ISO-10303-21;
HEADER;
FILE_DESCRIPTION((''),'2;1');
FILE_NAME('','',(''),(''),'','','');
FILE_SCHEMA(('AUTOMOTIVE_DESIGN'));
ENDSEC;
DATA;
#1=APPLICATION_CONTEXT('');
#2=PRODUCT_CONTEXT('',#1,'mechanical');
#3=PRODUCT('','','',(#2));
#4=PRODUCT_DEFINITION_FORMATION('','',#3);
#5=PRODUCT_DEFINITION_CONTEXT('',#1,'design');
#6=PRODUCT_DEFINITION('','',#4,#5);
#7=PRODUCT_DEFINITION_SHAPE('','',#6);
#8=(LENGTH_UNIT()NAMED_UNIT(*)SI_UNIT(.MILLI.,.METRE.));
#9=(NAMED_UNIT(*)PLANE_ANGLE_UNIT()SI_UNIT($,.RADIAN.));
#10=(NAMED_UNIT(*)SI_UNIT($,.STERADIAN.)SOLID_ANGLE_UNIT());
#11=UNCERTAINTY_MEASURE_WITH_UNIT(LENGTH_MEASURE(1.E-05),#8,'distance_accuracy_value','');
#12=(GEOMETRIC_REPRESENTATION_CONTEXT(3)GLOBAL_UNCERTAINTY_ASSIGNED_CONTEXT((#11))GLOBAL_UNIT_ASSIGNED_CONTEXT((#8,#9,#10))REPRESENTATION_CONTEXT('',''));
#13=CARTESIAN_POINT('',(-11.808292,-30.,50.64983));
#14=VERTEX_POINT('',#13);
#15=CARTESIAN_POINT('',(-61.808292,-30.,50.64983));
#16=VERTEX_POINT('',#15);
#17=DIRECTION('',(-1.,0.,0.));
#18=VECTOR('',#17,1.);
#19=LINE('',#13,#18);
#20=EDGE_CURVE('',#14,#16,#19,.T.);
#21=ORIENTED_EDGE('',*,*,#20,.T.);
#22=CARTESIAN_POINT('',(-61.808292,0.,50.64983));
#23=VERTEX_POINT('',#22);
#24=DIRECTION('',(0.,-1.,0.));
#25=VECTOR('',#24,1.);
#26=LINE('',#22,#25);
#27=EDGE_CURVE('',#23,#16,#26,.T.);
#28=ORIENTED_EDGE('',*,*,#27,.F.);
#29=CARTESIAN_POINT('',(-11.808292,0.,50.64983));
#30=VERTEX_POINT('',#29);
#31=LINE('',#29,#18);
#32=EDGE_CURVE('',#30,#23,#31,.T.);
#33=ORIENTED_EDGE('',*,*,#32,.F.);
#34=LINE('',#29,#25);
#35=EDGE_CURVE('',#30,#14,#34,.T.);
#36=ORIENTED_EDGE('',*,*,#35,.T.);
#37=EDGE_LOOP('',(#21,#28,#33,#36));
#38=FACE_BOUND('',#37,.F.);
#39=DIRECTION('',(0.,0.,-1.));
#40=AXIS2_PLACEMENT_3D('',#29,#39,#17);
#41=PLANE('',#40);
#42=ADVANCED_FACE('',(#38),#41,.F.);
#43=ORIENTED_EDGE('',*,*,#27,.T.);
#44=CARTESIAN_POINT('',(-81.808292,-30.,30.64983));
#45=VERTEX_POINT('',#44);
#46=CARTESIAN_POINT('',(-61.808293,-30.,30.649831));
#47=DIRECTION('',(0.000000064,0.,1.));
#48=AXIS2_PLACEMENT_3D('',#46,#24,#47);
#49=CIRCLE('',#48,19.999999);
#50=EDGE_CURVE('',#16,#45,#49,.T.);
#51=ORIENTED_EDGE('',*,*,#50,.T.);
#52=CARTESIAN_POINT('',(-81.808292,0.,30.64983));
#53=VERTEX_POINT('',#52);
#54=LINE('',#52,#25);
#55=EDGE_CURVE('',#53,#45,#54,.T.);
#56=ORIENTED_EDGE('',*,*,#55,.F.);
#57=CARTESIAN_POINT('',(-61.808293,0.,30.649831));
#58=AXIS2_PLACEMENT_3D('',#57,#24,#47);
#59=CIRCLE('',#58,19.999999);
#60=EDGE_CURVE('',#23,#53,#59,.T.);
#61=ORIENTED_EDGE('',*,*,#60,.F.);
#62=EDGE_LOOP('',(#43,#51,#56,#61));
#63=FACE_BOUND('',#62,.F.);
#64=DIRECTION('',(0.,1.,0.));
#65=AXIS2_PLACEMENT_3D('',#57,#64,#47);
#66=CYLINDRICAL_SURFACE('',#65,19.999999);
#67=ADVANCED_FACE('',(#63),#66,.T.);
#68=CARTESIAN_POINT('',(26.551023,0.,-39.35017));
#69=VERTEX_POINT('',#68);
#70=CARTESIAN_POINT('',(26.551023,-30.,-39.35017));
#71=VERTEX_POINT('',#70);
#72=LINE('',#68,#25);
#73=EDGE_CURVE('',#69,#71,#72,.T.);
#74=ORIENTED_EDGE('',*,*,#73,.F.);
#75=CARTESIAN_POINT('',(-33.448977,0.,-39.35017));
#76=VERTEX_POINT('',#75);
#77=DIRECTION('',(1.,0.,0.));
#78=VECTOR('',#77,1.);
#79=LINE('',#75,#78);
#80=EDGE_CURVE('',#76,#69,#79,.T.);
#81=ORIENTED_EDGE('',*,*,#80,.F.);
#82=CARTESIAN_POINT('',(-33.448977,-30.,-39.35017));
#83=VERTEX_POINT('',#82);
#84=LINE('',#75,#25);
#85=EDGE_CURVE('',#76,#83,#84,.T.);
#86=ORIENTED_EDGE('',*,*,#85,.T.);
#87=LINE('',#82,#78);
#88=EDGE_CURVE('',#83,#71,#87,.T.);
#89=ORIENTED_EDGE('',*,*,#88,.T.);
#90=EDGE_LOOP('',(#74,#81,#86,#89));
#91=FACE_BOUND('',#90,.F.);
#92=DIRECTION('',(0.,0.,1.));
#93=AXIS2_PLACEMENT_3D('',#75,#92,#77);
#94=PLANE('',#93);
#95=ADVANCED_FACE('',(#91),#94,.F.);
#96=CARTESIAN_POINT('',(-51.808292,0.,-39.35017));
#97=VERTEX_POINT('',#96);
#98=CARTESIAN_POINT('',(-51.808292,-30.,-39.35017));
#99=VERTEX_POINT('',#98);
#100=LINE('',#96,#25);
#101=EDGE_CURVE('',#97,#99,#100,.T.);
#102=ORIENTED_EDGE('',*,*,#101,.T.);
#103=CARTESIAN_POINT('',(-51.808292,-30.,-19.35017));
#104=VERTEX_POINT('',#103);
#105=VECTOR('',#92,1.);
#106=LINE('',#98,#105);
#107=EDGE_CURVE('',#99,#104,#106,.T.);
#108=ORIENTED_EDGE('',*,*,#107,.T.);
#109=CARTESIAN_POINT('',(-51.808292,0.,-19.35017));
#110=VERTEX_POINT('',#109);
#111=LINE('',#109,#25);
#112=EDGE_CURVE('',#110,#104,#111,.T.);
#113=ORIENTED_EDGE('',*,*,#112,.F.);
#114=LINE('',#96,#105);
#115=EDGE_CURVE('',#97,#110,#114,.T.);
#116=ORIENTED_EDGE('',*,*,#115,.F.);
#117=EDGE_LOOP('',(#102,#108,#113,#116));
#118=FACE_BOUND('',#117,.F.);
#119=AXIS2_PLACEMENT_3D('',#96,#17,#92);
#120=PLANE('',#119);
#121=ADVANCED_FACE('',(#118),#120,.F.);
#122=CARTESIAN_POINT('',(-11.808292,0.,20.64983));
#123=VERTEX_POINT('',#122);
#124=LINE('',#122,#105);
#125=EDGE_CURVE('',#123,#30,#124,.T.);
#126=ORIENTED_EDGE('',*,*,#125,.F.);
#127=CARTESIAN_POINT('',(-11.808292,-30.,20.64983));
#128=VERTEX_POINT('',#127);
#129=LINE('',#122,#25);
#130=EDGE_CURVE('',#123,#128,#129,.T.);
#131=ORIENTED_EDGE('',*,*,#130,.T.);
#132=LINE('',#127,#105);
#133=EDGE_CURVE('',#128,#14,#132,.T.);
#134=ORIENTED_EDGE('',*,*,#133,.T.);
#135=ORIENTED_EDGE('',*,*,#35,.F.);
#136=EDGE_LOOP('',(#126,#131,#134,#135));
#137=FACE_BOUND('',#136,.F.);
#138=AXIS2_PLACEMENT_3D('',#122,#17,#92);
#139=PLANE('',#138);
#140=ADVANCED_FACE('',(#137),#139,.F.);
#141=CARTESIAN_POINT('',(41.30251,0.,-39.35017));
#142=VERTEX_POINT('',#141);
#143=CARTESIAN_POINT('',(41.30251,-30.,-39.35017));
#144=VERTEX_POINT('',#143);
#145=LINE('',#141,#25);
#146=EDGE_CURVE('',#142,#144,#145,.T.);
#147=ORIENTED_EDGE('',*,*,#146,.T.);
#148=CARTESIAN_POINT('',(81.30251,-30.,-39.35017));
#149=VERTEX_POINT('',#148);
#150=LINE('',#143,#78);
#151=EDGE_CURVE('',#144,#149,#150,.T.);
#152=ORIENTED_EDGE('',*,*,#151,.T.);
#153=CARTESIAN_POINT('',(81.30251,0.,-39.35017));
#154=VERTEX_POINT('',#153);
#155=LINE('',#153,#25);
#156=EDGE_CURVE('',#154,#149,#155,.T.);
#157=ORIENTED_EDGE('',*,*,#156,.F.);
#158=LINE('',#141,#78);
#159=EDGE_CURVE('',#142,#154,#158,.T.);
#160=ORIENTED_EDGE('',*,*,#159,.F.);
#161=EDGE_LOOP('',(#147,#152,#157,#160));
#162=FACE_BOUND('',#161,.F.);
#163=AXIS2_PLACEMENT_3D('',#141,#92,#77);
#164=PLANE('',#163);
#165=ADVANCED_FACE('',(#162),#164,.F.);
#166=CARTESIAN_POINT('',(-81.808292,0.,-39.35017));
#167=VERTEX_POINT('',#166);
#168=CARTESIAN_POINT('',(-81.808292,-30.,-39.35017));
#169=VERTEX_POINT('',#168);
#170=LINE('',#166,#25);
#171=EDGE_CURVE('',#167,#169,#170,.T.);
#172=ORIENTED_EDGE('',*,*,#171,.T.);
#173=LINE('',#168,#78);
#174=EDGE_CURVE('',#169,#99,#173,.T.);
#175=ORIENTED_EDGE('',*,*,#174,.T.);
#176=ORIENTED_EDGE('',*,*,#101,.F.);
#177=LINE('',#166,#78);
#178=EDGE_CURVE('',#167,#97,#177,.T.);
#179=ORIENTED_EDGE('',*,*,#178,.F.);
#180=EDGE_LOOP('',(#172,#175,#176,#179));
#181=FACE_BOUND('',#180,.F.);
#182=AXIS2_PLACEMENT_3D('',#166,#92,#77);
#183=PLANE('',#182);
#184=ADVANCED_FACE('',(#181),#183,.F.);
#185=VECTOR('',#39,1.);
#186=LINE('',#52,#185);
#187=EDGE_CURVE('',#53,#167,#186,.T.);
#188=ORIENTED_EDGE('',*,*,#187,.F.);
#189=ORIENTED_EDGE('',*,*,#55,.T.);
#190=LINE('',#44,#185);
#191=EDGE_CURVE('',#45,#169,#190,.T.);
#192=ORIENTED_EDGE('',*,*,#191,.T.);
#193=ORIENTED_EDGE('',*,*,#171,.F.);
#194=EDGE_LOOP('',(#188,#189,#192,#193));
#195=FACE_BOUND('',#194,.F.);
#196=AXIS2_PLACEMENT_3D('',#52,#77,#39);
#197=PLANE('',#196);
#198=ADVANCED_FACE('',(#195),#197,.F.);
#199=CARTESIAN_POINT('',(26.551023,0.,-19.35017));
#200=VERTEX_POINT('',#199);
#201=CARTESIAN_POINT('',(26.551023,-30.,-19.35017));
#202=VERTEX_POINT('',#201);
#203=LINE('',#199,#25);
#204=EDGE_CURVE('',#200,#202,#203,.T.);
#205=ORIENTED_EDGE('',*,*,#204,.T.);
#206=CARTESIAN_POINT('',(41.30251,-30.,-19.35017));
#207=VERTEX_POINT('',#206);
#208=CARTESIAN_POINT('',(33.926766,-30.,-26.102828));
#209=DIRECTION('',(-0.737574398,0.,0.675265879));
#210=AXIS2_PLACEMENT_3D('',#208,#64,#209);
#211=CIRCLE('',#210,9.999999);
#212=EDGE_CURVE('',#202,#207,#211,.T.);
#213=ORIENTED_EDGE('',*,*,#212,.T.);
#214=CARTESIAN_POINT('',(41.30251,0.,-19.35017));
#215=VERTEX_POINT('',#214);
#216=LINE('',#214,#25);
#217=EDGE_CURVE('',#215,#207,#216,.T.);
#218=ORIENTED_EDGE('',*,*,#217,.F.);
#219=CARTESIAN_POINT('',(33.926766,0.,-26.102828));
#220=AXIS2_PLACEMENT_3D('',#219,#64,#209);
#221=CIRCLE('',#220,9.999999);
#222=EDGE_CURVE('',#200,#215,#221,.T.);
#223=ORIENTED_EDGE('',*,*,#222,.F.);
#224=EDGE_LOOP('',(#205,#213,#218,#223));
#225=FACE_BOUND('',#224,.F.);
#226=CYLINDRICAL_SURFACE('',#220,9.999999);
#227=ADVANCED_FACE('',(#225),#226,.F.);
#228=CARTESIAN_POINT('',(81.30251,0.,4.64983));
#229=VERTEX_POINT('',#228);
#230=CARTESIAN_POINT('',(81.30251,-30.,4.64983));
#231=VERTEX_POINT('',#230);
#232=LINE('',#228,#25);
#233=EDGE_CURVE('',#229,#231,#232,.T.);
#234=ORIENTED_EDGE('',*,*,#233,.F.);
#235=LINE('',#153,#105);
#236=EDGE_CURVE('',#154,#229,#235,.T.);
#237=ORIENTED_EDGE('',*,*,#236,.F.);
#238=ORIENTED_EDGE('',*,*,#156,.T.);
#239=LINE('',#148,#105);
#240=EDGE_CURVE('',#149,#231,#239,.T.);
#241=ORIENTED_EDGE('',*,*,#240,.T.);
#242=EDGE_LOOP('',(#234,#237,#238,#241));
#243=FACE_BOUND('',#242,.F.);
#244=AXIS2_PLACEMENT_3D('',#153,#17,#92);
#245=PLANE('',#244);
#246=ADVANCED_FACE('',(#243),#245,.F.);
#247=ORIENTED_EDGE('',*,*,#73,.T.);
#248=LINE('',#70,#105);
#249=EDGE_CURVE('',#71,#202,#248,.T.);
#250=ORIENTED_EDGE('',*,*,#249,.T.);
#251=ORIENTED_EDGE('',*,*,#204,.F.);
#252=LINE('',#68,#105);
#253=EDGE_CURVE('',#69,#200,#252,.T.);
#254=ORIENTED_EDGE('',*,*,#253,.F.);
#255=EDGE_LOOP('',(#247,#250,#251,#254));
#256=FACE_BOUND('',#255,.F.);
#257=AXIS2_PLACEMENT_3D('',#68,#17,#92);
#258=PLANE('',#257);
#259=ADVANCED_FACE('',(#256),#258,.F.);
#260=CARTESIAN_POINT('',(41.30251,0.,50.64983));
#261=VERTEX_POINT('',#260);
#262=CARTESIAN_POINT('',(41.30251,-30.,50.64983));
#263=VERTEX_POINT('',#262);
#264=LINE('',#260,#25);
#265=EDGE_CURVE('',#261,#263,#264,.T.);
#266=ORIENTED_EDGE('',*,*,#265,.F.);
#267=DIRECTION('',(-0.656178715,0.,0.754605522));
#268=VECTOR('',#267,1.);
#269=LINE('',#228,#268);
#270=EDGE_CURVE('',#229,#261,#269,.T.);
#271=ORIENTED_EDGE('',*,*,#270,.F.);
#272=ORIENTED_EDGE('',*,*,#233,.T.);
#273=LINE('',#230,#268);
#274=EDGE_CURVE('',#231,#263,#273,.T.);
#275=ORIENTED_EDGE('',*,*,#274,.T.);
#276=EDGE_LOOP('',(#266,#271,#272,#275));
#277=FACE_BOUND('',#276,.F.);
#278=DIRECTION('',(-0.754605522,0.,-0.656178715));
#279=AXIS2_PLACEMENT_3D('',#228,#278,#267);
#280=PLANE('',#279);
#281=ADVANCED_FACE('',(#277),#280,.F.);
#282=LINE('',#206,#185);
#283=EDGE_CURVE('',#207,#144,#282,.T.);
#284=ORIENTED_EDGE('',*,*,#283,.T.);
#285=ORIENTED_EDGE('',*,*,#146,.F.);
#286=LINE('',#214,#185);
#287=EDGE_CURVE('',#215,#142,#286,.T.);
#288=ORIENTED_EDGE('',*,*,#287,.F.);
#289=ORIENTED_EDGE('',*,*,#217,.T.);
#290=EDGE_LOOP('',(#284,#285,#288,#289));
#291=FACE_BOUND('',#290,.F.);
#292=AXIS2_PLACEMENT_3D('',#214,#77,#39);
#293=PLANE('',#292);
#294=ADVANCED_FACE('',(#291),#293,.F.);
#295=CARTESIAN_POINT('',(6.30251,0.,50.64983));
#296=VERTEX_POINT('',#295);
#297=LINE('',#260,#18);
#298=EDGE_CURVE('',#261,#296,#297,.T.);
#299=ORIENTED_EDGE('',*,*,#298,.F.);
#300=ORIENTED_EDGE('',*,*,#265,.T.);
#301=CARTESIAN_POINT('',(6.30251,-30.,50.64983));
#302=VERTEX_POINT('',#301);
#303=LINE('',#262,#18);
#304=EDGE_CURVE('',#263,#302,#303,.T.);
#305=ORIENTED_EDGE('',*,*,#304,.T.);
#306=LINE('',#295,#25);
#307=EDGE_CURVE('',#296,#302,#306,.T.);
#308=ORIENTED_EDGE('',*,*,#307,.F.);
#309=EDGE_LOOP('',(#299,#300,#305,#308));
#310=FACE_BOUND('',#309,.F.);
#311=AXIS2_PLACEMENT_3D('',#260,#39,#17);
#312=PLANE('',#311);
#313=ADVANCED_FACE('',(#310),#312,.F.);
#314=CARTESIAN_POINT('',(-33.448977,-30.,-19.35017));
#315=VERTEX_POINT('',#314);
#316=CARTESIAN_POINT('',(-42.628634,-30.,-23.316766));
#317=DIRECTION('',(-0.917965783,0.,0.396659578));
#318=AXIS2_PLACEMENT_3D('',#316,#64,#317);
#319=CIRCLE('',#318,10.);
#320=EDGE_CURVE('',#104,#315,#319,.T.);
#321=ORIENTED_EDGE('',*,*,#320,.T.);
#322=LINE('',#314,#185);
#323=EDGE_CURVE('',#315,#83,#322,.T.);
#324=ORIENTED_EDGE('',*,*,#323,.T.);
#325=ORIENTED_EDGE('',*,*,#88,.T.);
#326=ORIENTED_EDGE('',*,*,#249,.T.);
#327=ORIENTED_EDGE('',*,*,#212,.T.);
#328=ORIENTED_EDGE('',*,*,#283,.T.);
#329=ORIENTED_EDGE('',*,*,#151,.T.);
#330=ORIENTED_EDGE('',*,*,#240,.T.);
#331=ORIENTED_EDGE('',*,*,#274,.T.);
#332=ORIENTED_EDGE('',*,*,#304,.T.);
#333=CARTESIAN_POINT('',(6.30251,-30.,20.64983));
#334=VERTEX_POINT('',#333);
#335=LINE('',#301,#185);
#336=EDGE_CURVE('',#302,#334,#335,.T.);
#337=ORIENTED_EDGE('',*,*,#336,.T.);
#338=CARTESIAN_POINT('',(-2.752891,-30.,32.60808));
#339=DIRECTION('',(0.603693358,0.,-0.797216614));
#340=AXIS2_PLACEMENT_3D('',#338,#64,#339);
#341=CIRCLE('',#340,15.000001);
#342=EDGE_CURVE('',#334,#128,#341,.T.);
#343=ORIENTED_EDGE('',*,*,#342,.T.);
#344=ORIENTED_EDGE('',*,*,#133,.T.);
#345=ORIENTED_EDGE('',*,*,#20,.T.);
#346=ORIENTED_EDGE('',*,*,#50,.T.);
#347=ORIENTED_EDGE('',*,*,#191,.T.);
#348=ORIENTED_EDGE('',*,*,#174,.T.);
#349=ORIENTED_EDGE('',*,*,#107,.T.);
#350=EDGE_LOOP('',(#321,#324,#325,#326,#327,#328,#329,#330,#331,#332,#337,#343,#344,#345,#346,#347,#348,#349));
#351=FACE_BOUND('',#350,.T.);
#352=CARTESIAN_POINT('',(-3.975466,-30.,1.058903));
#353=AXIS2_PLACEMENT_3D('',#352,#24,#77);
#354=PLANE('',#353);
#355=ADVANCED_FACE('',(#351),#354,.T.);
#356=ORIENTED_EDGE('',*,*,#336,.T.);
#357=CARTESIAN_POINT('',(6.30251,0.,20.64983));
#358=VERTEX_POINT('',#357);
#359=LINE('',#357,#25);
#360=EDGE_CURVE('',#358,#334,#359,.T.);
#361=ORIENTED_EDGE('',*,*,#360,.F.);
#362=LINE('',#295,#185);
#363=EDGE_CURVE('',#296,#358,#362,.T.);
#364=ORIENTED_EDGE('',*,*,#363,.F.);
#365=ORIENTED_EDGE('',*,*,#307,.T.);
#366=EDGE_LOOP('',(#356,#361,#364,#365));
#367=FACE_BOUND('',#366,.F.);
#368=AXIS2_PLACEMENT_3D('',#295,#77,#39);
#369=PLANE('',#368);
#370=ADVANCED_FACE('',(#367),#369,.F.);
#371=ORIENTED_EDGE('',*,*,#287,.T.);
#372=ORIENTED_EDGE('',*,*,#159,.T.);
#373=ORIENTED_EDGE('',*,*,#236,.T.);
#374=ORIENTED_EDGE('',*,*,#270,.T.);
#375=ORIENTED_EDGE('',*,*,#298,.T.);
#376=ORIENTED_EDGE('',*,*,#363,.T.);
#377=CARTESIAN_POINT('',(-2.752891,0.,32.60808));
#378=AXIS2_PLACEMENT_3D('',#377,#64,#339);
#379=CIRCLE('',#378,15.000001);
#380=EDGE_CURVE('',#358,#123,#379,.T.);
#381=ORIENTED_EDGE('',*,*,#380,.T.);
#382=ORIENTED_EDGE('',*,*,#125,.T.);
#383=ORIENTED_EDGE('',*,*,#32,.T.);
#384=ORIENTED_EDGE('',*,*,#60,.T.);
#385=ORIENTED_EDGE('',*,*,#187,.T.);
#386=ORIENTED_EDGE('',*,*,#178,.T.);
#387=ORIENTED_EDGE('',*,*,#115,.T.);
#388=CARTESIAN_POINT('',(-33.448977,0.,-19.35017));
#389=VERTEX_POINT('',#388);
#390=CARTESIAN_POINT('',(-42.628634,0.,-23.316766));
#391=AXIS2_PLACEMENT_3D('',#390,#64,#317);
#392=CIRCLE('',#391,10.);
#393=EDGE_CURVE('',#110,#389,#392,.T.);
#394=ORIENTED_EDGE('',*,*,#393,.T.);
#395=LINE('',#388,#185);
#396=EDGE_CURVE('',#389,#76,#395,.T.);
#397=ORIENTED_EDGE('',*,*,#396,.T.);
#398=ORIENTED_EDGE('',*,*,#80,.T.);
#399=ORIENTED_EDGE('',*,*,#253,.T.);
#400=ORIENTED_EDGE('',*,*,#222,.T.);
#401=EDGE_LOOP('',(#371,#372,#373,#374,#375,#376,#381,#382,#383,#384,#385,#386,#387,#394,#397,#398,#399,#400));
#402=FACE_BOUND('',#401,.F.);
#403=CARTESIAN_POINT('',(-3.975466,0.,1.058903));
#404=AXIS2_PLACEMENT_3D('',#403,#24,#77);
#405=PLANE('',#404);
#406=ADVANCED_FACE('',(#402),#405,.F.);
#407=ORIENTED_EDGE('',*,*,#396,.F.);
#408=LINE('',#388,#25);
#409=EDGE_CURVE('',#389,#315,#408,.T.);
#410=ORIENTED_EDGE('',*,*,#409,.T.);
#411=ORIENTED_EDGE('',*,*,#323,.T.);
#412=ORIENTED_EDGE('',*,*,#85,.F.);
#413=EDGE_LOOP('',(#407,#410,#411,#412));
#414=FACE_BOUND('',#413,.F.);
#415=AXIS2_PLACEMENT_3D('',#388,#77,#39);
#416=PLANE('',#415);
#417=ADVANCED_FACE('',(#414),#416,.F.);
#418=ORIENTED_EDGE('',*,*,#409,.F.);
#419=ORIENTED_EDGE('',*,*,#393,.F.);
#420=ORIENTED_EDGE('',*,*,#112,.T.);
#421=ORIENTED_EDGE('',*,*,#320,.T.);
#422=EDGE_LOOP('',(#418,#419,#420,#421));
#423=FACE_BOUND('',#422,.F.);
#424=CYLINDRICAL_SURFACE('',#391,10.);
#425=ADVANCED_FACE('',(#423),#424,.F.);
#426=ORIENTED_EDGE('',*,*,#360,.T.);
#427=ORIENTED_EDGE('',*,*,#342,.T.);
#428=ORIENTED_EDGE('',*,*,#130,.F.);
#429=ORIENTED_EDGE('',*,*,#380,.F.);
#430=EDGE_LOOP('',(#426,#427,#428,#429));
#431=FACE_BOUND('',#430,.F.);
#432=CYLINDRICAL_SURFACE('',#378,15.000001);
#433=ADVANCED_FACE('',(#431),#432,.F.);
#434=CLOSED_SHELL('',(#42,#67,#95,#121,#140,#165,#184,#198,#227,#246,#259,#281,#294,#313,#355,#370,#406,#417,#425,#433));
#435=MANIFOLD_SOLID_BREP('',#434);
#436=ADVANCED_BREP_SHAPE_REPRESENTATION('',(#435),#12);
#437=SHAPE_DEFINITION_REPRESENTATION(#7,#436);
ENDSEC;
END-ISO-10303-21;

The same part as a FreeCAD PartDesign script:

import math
import FreeCAD as App
import Part
import Sketcher
Q = App.Units.Quantity

doc = App.newDocument("Part")
body = doc.addObject("PartDesign::Body", "Body")

# Sketch on XZ plane
sketch1 = doc.addObject("Sketcher::SketchObject", "Sketch")
body.addObject(sketch1)
sketch1.AttachmentSupport = (doc.XZ_Plane, [""])
sketch1.MapMode = "FlatFace"
sketch1.addGeometry([
    Part.LineSegment(App.Vector(-12, 21, 0), App.Vector(-12, 51, 0)),  # 0
    Part.LineSegment(App.Vector(-12, 51, 0), App.Vector(-62, 51, 0)),  # 1
    Part.ArcOfCircle(Part.Circle(App.Vector(-62, 31, 0), App.Vector(0, 0, 1), 20), math.radians(90), math.radians(180)),  # 2
    Part.LineSegment(App.Vector(-82, 31, 0), App.Vector(-82, -39, 0)),  # 3
    Part.LineSegment(App.Vector(-82, -39, 0), App.Vector(-52, -39, 0)),  # 4
    Part.LineSegment(App.Vector(-52, -39, 0), App.Vector(-52, -19, 0)),  # 5
    Part.ArcOfCircle(Part.Circle(App.Vector(-43, -23, 0), App.Vector(0, 0, 1), 10), math.radians(23), math.radians(157)),  # 6
    Part.LineSegment(App.Vector(-33, -19, 0), App.Vector(-33, -39, 0)),  # 7
    Part.LineSegment(App.Vector(-33, -39, 0), App.Vector(27, -39, 0)),  # 8
    Part.LineSegment(App.Vector(27, -39, 0), App.Vector(27, -19, 0)),  # 9
    Part.ArcOfCircle(Part.Circle(App.Vector(34, -26, 0), App.Vector(0, 0, 1), 10), math.radians(42), math.radians(138)),  # 10
    Part.LineSegment(App.Vector(41, -19, 0), App.Vector(41, -39, 0)),  # 11
    Part.LineSegment(App.Vector(41, -39, 0), App.Vector(81, -39, 0)),  # 12
    Part.LineSegment(App.Vector(81, -39, 0), App.Vector(81, 5, 0)),  # 13
    Part.LineSegment(App.Vector(81, 5, 0), App.Vector(41, 51, 0)),  # 14
    Part.LineSegment(App.Vector(41, 51, 0), App.Vector(6, 51, 0)),  # 15
    Part.LineSegment(App.Vector(6, 51, 0), App.Vector(6, 21, 0)),  # 16
    Part.ArcOfCircle(Part.Circle(App.Vector(-3, 33, 0), App.Vector(0, 0, 1), 15), math.radians(-127), math.radians(-53)),  # 17
], False)
sketch1.addConstraint([
    Sketcher.Constraint("Coincident", 0, 2, 1, 1),
    Sketcher.Constraint("Tangent", 1, 2, 2, 1),
    Sketcher.Constraint("Tangent", 2, 2, 3, 1),
    Sketcher.Constraint("Coincident", 3, 2, 4, 1),
    Sketcher.Constraint("Coincident", 4, 2, 5, 1),
    Sketcher.Constraint("Coincident", 5, 2, 6, 2),
    Sketcher.Constraint("Coincident", 6, 1, 7, 1),
    Sketcher.Constraint("Coincident", 7, 2, 8, 1),
    Sketcher.Constraint("Coincident", 8, 2, 9, 1),
    Sketcher.Constraint("Coincident", 9, 2, 10, 2),
    Sketcher.Constraint("Coincident", 10, 1, 11, 1),
    Sketcher.Constraint("Coincident", 11, 2, 12, 1),
    Sketcher.Constraint("Coincident", 12, 2, 13, 1),
    Sketcher.Constraint("Coincident", 13, 2, 14, 1),
    Sketcher.Constraint("Coincident", 14, 2, 15, 1),
    Sketcher.Constraint("Coincident", 15, 2, 16, 1),
    Sketcher.Constraint("Coincident", 16, 2, 17, 2),
    Sketcher.Constraint("Coincident", 17, 1, 0, 1),
    Sketcher.Constraint("Vertical", 0),
    Sketcher.Constraint("Horizontal", 1),
    Sketcher.Constraint("Vertical", 3),
    Sketcher.Constraint("Horizontal", 4),
    Sketcher.Constraint("Vertical", 5),
    Sketcher.Constraint("Vertical", 7),
    Sketcher.Constraint("Horizontal", 8),
    Sketcher.Constraint("Vertical", 9),
    Sketcher.Constraint("Vertical", 11),
    Sketcher.Constraint("Horizontal", 12),
    Sketcher.Constraint("Vertical", 13),
    Sketcher.Constraint("Horizontal", 15),
    Sketcher.Constraint("Vertical", 16),
    Sketcher.Constraint("Equal", 6, 10),
    Sketcher.Constraint("Horizontal", 5, 2, 6, 1),
    Sketcher.Constraint("Horizontal", 4, 2, 7, 2),
    Sketcher.Constraint("Horizontal", 6, 1, 9, 2),
    Sketcher.Constraint("Horizontal", 9, 2, 10, 1),
    Sketcher.Constraint("Horizontal", 8, 2, 11, 2),
    Sketcher.Constraint("Horizontal", 1, 2, 14, 2),
    Sketcher.Constraint("Horizontal", 16, 2, 17, 1),
    Sketcher.Constraint("Vertical", 11, 2, 14, 2),
    Sketcher.Constraint("Equal", 4, 0),
    Sketcher.Constraint("Radius", 2, Q("19.999999 mm")),
    Sketcher.Constraint("Radius", 6, Q("10 mm")),
    Sketcher.Constraint("Radius", 17, Q("15.000001 mm")),
    Sketcher.Constraint("DistanceX", 1, 2, 1, 1, Q("50 mm")),
    Sketcher.Constraint("DistanceX", 4, 1, 4, 2, Q("30 mm")),
    Sketcher.Constraint("DistanceX", 8, 1, 8, 2, Q("60 mm")),
    Sketcher.Constraint("DistanceX", 12, 1, 12, 2, Q("40 mm")),
    Sketcher.Constraint("DistanceX", 15, 2, 15, 1, Q("35 mm")),
    Sketcher.Constraint("DistanceY", 3, 2, 3, 1, Q("70 mm")),
    Sketcher.Constraint("DistanceY", 5, 1, 5, 2, Q("20 mm")),
    Sketcher.Constraint("DistanceY", 13, 1, 13, 2, Q("44 mm")),
    Sketcher.Constraint("DistanceX", 6, 3, 10, 3, Q("76.555401 mm")),
    Sketcher.Constraint("DistanceY", -1, 1, 2, 3, Q("30.649831 mm")),
    Sketcher.Constraint("DistanceY", 10, 3, -1, 1, Q("26.102828 mm")),
    Sketcher.Constraint("DistanceX", 17, 3, -1, 1, Q("2.752891 mm")),
])
pad1 = doc.addObject("PartDesign::Pad", "Pad")
body.addObject(pad1)
pad1.Profile = sketch1
pad1.Length = 30

doc.recompute()
